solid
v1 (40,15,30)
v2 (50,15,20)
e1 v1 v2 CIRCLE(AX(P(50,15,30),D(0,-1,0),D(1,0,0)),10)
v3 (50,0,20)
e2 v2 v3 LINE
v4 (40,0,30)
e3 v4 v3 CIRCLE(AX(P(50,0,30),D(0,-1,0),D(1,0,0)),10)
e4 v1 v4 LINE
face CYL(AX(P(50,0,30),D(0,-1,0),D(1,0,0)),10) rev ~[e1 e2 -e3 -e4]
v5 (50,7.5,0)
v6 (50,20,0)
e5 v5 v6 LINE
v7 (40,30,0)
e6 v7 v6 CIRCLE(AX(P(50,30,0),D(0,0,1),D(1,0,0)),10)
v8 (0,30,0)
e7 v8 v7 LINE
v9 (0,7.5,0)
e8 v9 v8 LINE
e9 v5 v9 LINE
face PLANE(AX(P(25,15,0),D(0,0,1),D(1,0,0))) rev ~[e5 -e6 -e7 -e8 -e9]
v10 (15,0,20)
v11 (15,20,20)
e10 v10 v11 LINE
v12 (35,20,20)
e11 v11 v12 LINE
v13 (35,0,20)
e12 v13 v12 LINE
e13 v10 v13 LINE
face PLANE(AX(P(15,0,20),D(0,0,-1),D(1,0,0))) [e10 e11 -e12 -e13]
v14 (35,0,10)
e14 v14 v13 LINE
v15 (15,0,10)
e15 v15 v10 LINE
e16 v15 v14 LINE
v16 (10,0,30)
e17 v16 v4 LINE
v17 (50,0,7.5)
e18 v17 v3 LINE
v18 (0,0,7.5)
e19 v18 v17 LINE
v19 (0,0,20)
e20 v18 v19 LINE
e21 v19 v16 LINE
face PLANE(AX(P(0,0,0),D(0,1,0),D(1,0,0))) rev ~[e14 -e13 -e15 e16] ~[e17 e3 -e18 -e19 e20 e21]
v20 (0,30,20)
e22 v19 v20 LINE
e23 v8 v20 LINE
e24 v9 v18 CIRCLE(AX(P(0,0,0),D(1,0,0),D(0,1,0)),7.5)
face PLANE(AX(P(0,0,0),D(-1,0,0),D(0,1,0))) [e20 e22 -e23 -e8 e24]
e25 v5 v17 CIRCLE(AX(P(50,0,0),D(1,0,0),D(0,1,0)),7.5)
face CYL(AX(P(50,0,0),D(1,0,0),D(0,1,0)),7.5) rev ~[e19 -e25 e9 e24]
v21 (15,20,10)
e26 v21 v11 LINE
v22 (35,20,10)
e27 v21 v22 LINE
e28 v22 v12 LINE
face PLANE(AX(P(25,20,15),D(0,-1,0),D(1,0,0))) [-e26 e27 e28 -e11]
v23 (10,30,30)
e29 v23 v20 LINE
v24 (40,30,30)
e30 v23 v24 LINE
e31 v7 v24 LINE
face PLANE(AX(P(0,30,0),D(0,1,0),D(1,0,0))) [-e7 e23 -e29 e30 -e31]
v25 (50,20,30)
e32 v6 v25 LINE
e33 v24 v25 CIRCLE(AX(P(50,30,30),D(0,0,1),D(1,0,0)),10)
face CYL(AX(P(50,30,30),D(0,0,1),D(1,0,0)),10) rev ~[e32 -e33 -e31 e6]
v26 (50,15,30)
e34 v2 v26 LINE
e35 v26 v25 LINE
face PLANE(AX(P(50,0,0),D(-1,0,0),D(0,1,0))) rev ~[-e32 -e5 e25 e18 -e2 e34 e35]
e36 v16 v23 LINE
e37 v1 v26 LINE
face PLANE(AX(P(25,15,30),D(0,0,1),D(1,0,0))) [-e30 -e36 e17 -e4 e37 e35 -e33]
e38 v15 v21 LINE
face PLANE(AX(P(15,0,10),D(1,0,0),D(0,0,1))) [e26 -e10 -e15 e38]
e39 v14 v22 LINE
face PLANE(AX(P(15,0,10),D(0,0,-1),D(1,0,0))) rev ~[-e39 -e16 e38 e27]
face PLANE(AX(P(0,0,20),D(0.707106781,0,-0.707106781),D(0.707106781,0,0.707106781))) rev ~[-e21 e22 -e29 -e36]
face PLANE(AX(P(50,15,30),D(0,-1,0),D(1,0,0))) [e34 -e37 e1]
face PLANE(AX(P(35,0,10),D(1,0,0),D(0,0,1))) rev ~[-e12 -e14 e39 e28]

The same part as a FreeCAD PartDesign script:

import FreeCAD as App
import Part
import Sketcher

V = App.Vector


def add_polygon(sketch, points):
    """Adds a closed chain of lines whose ends are joined by coincident constraints."""
    first, n = sketch.GeometryCount, len(points)
    for a, b in zip(points, points[1:] + points[:1]):
        sketch.addGeometry(Part.LineSegment(App.Vector(*a, 0), App.Vector(*b, 0)), False)
    for i in range(n):
        sketch.addConstraint(Sketcher.Constraint("Coincident", first + i, 2, first + (i + 1) % n, 1))

doc = App.newDocument("Part")
params = doc.addObject("Spreadsheet::Sheet", "Params")
for row, (alias, value) in enumerate([
    ("sketch1_width", "50 mm"),
    ("sketch1_height", "30 mm"),
    ("pad1_length", "30 mm"),
    ("sketch2_width", "10 mm"),
    ("sketch3_diameter", "20 mm"),
    ("pocket2_length", "15 mm"),
    ("sketch4_width", "20 mm"),
    ("sketch4_height", "10 mm"),
    ("pocket3_length", "20 mm"),
    ("sketch5_diameter", "15 mm"),
    ("sketch6_diameter", "20 mm"),
], start=1):
    params.set(f"A{row}", alias)
    params.set(f"B{row}", "=" + value)
    params.setAlias(f"B{row}", alias)

body = doc.addObject("PartDesign::Body", "Body")

# Sketch on XY plane
sketch1 = body.newObject("Sketcher::SketchObject", "Sketch")
sketch1.AttachmentSupport = (doc.getObject("XY_Plane"), [""])
sketch1.MapMode = "FlatFace"
add_polygon(sketch1, [(0, 30), (0, 0), (50, 0), (50, 30)])  # lines 0-3
sketch1.addConstraint([
    Sketcher.Constraint("Vertical", 0),
    Sketcher.Constraint("Horizontal", 1),
    Sketcher.Constraint("Vertical", 2),
    Sketcher.Constraint("Horizontal", 3),
    Sketcher.Constraint("Coincident", 0, 2, -1, 1),
    Sketcher.Constraint("DistanceX", 1, 1, 1, 2, 50.0),
    Sketcher.Constraint("DistanceY", 0, 2, 0, 1, 30.0),
])
sketch1.setExpression("Constraints[9]", "Params.sketch1_width")
sketch1.setExpression("Constraints[10]", "Params.sketch1_height")
pad1 = body.newObject("PartDesign::Pad", "Pad")
pad1.Profile = sketch1
pad1.setExpression("Length", "Params.pad1_length")

# Sketch on XZ plane
sketch2 = body.newObject("Sketcher::SketchObject", "Sketch001")
sketch2.AttachmentSupport = (doc.getObject("XZ_Plane"), [""])
sketch2.MapMode = "FlatFace"
add_polygon(sketch2, [(10, 30), (0, 30), (0, 20)])  # lines 0-2
sketch2.addConstraint([
    Sketcher.Constraint("Horizontal", 0),
    Sketcher.Constraint("Vertical", 1),
    Sketcher.Constraint("PointOnObject", 0, 2, -2),
    Sketcher.Constraint("Equal", 0, 1),
    Sketcher.Constraint("DistanceX", 0, 2, 0, 1, 10.0),
    Sketcher.Constraint("DistanceY", -1, 1, 0, 2, 30.0),
])
sketch2.setExpression("Constraints[7]", "Params.sketch2_width")
pocket1 = body.newObject("PartDesign::Pocket", "Pocket")
pocket1.Profile = sketch2
pocket1.Type = "ThroughAll"

# Sketch on XZ plane
sketch3 = body.newObject("Sketcher::SketchObject", "Sketch002")
sketch3.AttachmentSupport = (doc.getObject("XZ_Plane"), [""])
sketch3.MapMode = "FlatFace"
sketch3.addGeometry(Part.Circle(V(50, 30, 0), V(0, 0, 1), 10), False)
sketch3.addConstraint([
    Sketcher.Constraint("Diameter", 0, 20.0),
    Sketcher.Constraint("DistanceX", -1, 1, 0, 3, 50.0),
    Sketcher.Constraint("DistanceY", -1, 1, 0, 3, 30.0),
])
sketch3.setExpression("Constraints[0]", "Params.sketch3_diameter")
pocket2 = body.newObject("PartDesign::Pocket", "Pocket001")
pocket2.Profile = sketch3
pocket2.setExpression("Length", "Params.pocket2_length")

# Sketch on XZ plane
sketch4 = body.newObject("Sketcher::SketchObject", "Sketch003")
sketch4.AttachmentSupport = (doc.getObject("XZ_Plane"), [""])
sketch4.MapMode = "FlatFace"
add_polygon(sketch4, [(15, 20), (15, 10), (35, 10), (35, 20)])  # lines 0-3
sketch4.addConstraint([
    Sketcher.Constraint("Vertical", 0),
    Sketcher.Constraint("Horizontal", 1),
    Sketcher.Constraint("Vertical", 2),
    Sketcher.Constraint("Horizontal", 3),
    Sketcher.Constraint("DistanceX", 1, 1, 1, 2, 20.0),
    Sketcher.Constraint("DistanceY", 0, 2, 0, 1, 10.0),
    Sketcher.Constraint("DistanceX", -1, 1, 0, 2, 15.0),
    Sketcher.Constraint("DistanceY", -1, 1, 0, 2, 10.0),
])
sketch4.setExpression("Constraints[8]", "Params.sketch4_width")
sketch4.setExpression("Constraints[9]", "Params.sketch4_height")
pocket3 = body.newObject("PartDesign::Pocket", "Pocket002")
pocket3.Profile = sketch4
pocket3.setExpression("Length", "Params.pocket3_length")

# Sketch on YZ plane
sketch5 = body.newObject("Sketcher::SketchObject", "Sketch004")
sketch5.AttachmentSupport = (doc.getObject("YZ_Plane"), [""])
sketch5.MapMode = "FlatFace"
sketch5.AttachmentOffset = App.Placement(V(0, 0, 50), App.Rotation())
sketch5.addGeometry(Part.Circle(V(0, 0, 0), V(0, 0, 1), 7.5), False)
sketch5.addConstraint([
    Sketcher.Constraint("Coincident", 0, 3, -1, 1),
    Sketcher.Constraint("Diameter", 0, 15.0),
])
sketch5.setExpression("Constraints[1]", "Params.sketch5_diameter")
pocket4 = body.newObject("PartDesign::Pocket", "Pocket003")
pocket4.Profile = sketch5
pocket4.Type = "ThroughAll"

# Sketch on XY plane
sketch6 = body.newObject("Sketcher::SketchObject", "Sketch005")
sketch6.AttachmentSupport = (doc.getObject("XY_Plane"), [""])
sketch6.MapMode = "FlatFace"
sketch6.AttachmentOffset = App.Placement(V(0, 0, 30), App.Rotation())
sketch6.addGeometry(Part.Circle(V(50, 30, 0), V(0, 0, 1), 10), False)
sketch6.addConstraint([
    Sketcher.Constraint("Diameter", 0, 20.0),
    Sketcher.Constraint("DistanceX", -1, 1, 0, 3, 50.0),
    Sketcher.Constraint("DistanceY", -1, 1, 0, 3, 30.0),
])
sketch6.setExpression("Constraints[0]", "Params.sketch6_diameter")
pocket5 = body.newObject("PartDesign::Pocket", "Pocket004")
pocket5.Profile = sketch6
pocket5.Type = "ThroughAll"

doc.recompute()
